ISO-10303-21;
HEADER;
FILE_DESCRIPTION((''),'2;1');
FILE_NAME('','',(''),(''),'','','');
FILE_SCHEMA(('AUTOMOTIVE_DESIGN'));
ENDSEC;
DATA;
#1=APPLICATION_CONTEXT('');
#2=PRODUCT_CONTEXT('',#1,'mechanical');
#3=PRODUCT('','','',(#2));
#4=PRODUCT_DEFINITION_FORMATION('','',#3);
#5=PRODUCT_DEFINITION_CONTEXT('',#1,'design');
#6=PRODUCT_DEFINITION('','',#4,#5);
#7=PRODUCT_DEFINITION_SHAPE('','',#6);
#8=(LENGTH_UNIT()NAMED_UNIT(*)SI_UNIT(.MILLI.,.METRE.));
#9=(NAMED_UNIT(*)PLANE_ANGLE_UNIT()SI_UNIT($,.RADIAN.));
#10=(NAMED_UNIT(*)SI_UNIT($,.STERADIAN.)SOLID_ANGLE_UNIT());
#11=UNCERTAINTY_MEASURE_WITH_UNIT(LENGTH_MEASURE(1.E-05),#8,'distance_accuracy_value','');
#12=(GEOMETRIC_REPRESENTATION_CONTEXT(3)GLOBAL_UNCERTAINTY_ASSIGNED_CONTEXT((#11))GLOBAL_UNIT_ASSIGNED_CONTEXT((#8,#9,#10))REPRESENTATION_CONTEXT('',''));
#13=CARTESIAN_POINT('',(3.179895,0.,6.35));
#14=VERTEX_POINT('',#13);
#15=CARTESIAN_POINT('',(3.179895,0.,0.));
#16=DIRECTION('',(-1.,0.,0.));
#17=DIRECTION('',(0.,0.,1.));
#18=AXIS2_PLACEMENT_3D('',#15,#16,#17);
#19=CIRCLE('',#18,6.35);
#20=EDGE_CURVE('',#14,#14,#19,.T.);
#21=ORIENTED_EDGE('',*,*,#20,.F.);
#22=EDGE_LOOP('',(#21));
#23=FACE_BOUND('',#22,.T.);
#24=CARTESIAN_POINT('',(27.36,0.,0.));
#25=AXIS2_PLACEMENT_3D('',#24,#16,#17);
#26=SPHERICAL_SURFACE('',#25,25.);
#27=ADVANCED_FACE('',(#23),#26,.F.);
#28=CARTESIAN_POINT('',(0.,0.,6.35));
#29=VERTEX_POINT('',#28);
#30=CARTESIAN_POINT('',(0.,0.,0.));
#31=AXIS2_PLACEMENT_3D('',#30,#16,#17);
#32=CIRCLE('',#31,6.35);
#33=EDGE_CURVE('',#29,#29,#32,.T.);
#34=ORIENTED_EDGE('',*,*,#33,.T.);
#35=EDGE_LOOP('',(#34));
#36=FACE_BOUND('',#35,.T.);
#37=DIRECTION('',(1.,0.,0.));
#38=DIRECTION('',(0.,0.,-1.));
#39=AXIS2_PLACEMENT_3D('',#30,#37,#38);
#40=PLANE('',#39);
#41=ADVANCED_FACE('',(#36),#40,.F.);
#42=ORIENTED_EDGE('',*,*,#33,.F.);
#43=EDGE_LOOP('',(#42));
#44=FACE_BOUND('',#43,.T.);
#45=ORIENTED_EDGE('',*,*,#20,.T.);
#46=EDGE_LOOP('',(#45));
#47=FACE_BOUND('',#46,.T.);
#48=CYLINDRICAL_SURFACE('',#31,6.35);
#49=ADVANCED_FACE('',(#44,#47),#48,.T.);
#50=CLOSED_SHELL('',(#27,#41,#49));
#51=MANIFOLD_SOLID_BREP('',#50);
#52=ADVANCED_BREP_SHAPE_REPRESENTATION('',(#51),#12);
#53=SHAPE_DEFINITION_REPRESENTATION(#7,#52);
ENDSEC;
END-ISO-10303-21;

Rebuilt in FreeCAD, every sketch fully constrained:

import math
import FreeCAD as App
import Part
import Sketcher

V = App.Vector
Q = App.Units.Quantity

doc = App.newDocument("Part")
body = doc.addObject("PartDesign::Body", "Body")

# Sketch on XZ plane
sketch1 = body.newObject("Sketcher::SketchObject", "Sketch")
sketch1.AttachmentSupport = (doc.getObject("XZ_Plane"), [""])
sketch1.MapMode = "FlatFace"
sketch1.addGeometry([
    Part.LineSegment(V(0, 0, 0), V(2.4, 0, 0)),
    Part.ArcOfCircle(Part.Circle(V(27.4, 0, 0), V(0, 0, 1), 25), math.radians(-180), math.radians(-165.29)),
    Part.LineSegment(V(3.2, -6.3, 0), V(0, -6.3, 0)),
    Part.LineSegment(V(0, -6.3, 0), V(0, 0, 0)),
], False)
sketch1.addConstraint([
    Sketcher.Constraint("Coincident", 0, 2, 1, 1),
    Sketcher.Constraint("Coincident", 1, 2, 2, 1),
    Sketcher.Constraint("Coincident", 2, 2, 3, 1),
    Sketcher.Constraint("Coincident", 3, 2, 0, 1),
    Sketcher.Constraint("Horizontal", 0),
    Sketcher.Constraint("Horizontal", 2),
    Sketcher.Constraint("Vertical", 3),
    Sketcher.Constraint("Coincident", 3, 2, -1, 1),
    Sketcher.Constraint("PointOnObject", 1, 3, -1),
    Sketcher.Constraint("Radius", 1, Q("25 mm")),
    Sketcher.Constraint("DistanceX", 0, 1, 0, 2, Q("2.36 mm")),
    Sketcher.Constraint("DistanceY", 3, 1, 3, 2, Q("6.35 mm")),
])
revolution = body.newObject("PartDesign::Revolution", "Revolution")
revolution.Profile = sketch1
revolution.ReferenceAxis = (sketch1, ["H_Axis"])
revolution.Angle = 360

doc.recompute()
